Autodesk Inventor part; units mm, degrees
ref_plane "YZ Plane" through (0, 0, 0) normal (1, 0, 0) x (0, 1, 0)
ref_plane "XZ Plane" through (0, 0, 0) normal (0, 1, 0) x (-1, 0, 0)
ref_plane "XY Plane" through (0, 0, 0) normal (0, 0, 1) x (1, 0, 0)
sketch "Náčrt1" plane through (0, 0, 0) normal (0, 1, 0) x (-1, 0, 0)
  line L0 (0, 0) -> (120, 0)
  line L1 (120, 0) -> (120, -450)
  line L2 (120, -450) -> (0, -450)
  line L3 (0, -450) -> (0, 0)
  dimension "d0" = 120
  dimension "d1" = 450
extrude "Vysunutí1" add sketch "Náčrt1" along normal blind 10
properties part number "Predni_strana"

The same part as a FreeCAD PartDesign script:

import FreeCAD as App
import Part
import Sketcher
from FreeCAD import Vector

doc = App.newDocument("Part")
body = doc.addObject("PartDesign::Body", "Body")

# Sketch on XZ plane
sketch1 = doc.addObject("Sketcher::SketchObject", "Sketch")
body.addObject(sketch1)
sketch1.AttachmentSupport = (doc.XZ_Plane, [""])
sketch1.MapMode = "FlatFace"
sketch1.addGeometry(Part.LineSegment(Vector(-120, 0, 0), Vector(0, 0, 0)), False)
sketch1.addGeometry(Part.LineSegment(Vector(0, 0, 0), Vector(0, -450, 0)), False)
sketch1.addGeometry(Part.LineSegment(Vector(0, -450, 0), Vector(-120, -450, 0)), False)
sketch1.addGeometry(Part.LineSegment(Vector(-120, -450, 0), Vector(-120, 0, 0)), False)
sketch1.addConstraint(Sketcher.Constraint("Coincident", 0, 2, 1, 1))
sketch1.addConstraint(Sketcher.Constraint("Coincident", 1, 2, 2, 1))
sketch1.addConstraint(Sketcher.Constraint("Coincident", 2, 2, 3, 1))
sketch1.addConstraint(Sketcher.Constraint("Coincident", 3, 2, 0, 1))
sketch1.addConstraint(Sketcher.Constraint("Horizontal", 0))
sketch1.addConstraint(Sketcher.Constraint("Vertical", 1))
sketch1.addConstraint(Sketcher.Constraint("Horizontal", 2))
sketch1.addConstraint(Sketcher.Constraint("Vertical", 3))
sketch1.addConstraint(Sketcher.Constraint("Coincident", 0, 2, -1, 1))
sketch1.addConstraint(Sketcher.Constraint("DistanceX", 0, 1, 0, 2, 120.0))
sketch1.addConstraint(Sketcher.Constraint("DistanceY", 1, 2, 1, 1, 450.0))
pad1 = doc.addObject("PartDesign::Pad", "Pad")
body.addObject(pad1)
pad1.Profile = sketch1
pad1.Length = 10
pad1.Reversed = True

doc.recompute()
